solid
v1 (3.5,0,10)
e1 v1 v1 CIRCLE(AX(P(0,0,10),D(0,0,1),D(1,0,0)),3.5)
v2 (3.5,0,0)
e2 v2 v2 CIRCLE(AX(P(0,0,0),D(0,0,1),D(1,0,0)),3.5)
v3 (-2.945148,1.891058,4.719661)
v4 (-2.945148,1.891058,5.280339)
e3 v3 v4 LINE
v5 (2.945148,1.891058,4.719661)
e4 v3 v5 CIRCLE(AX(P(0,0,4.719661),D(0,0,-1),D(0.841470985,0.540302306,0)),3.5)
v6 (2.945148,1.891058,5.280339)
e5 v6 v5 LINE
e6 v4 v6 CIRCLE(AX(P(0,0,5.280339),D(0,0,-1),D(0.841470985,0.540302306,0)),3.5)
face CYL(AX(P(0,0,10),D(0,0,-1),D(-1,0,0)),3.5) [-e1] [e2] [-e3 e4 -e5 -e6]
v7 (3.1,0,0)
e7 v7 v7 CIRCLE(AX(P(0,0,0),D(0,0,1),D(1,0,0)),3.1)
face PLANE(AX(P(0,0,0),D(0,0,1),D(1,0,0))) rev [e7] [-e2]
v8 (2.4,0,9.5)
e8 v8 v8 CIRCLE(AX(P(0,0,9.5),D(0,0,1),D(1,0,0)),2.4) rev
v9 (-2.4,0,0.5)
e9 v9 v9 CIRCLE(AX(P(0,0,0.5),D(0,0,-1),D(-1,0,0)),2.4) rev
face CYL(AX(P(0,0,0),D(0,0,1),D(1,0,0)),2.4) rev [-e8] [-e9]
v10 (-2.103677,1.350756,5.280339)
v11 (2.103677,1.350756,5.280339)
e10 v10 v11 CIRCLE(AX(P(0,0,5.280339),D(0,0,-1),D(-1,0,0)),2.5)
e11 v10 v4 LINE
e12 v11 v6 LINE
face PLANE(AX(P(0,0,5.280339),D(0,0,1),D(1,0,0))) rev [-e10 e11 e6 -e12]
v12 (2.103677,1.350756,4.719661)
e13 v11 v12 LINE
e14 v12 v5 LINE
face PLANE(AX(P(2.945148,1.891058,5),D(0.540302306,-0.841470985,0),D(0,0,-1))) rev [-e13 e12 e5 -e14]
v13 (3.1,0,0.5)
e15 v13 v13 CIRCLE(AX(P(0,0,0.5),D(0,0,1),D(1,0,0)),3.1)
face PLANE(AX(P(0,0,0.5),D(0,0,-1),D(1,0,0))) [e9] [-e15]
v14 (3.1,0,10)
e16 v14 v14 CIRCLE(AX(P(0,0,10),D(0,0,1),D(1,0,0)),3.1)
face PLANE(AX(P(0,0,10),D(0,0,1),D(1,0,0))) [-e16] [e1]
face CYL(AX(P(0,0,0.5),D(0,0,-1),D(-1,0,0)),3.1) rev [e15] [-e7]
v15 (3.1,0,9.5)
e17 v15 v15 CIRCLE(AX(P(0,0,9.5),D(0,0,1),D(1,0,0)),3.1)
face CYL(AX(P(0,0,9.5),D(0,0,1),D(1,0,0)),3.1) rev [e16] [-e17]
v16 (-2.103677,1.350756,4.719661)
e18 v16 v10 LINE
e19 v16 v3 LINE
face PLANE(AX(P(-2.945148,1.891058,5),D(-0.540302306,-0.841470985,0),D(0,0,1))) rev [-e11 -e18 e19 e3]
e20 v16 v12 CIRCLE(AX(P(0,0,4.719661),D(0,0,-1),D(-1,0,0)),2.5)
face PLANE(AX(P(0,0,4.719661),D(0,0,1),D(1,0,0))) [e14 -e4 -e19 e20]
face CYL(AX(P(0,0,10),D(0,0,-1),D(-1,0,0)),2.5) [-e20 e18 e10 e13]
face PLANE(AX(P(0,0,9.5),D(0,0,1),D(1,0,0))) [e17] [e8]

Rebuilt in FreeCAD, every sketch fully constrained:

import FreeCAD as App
import Part
import Sketcher
from FreeCAD import Vector

doc = App.newDocument("Part")
body = doc.addObject("PartDesign::Body", "Body")

sketch1 = body.newObject("Sketcher::SketchObject", "Sketch")
sketch1.AttachmentSupport = (doc.getObject("XY_Plane"), [""])
sketch1.MapMode = "FlatFace"
sketch1.addGeometry(Part.Circle(Vector(0, 0, 0), Vector(0, 0, 1), 3.5), False)
sketch1.addConstraint([
    Sketcher.Constraint("Coincident", 0, 3, -1, 1),
    Sketcher.Constraint("Diameter", 0, 7.0),
])
pad1 = body.newObject("PartDesign::Pad", "Pad")
pad1.Profile = sketch1
pad1.Length = 10

sketch2 = body.newObject("Sketcher::SketchObject", "Sketch001")
sketch2.AttachmentSupport = (doc.getObject("XY_Plane"), [""])
sketch2.MapMode = "FlatFace"
sketch2.AttachmentOffset = App.Placement(Vector(0, 0, 10), App.Rotation())
sketch2.addGeometry(Part.Circle(Vector(0, 0, 0), Vector(0, 0, 1), 2.4), False)
sketch2.addConstraint([
    Sketcher.Constraint("Coincident", 0, 3, -1, 1),
    Sketcher.Constraint("Diameter", 0, 4.8),
])
pocket1 = body.newObject("PartDesign::Pocket", "Pocket")
pocket1.Profile = sketch2
pocket1.Type = "ThroughAll"

sketch3 = body.newObject("Sketcher::SketchObject", "Sketch002")
sketch3.AttachmentSupport = (doc.getObject("XY_Plane"), [""])
sketch3.MapMode = "FlatFace"
sketch3.AttachmentOffset = App.Placement(Vector(0, 0, 10), App.Rotation())
sketch3.addGeometry(Part.Circle(Vector(0, 0, 0), Vector(0, 0, 1), 3.1), False)
sketch3.addConstraint([
    Sketcher.Constraint("Coincident", 0, 3, -1, 1),
    Sketcher.Constraint("Diameter", 0, 6.2),
])
pocket2 = body.newObject("PartDesign::Pocket", "Pocket001")
pocket2.Profile = sketch3
pocket2.Length = 0.5
doc.recompute()

datumplane = body.newObject("PartDesign::Plane", "DatumPlane")
datumplane.AttachmentSupport = (doc.getObject("XY_Plane"), [""])
datumplane.MapMode = "FlatFace"
datumplane.AttachmentOffset = App.Placement(Vector(0, 0, 5), App.Rotation())
mirrored = body.newObject("PartDesign::Mirrored", "Mirrored")
mirrored.Originals = [pocket2]
mirrored.MirrorPlane = (datumplane, [""])
body.Tip = mirrored

sketch4 = body.newObject("Sketcher::SketchObject", "Sketch003")
sketch4.Placement = App.Placement(Vector(0, 0, 0), App.Rotation(Vector(-0.841470985, 0.540302306, 0), Vector(0, 0, -1), Vector(-0.540302306, -0.841470985, 0), "ZXY"))
sketch4.addGeometry([
    Part.LineSegment(Vector(2.5, -4.7, 0), Vector(2.5, -5.3, 0)),
    Part.LineSegment(Vector(2.5, -5.3, 0), Vector(3.5, -5.3, 0)),
    Part.LineSegment(Vector(3.5, -5.3, 0), Vector(3.5, -4.7, 0)),
    Part.LineSegment(Vector(3.5, -4.7, 0), Vector(2.5, -4.7, 0)),
], False)
sketch4.addConstraint([
    Sketcher.Constraint("Coincident", 0, 2, 1, 1),
    Sketcher.Constraint("Coincident", 1, 2, 2, 1),
    Sketcher.Constraint("Coincident", 2, 2, 3, 1),
    Sketcher.Constraint("Coincident", 3, 2, 0, 1),
    Sketcher.Constraint("Vertical", 0),
    Sketcher.Constraint("Horizontal", 1),
    Sketcher.Constraint("Vertical", 2),
    Sketcher.Constraint("Horizontal", 3),
    Sketcher.Constraint("DistanceX", 1, 1, 1, 2, 1.0),
    Sketcher.Constraint("DistanceX", -1, 1, 0, 2, 2.5),
    Sketcher.Constraint("DistanceY", 0, 2, 0, 1, 0.560679),
    Sketcher.Constraint("DistanceY", 0, 2, -1, 1, 5.280339),
])
groove = body.newObject("PartDesign::Groove", "Groove")
groove.Profile = sketch4
groove.ReferenceAxis = (sketch4, ["V_Axis"])
groove.Angle = 114.591559

doc.recompute()
